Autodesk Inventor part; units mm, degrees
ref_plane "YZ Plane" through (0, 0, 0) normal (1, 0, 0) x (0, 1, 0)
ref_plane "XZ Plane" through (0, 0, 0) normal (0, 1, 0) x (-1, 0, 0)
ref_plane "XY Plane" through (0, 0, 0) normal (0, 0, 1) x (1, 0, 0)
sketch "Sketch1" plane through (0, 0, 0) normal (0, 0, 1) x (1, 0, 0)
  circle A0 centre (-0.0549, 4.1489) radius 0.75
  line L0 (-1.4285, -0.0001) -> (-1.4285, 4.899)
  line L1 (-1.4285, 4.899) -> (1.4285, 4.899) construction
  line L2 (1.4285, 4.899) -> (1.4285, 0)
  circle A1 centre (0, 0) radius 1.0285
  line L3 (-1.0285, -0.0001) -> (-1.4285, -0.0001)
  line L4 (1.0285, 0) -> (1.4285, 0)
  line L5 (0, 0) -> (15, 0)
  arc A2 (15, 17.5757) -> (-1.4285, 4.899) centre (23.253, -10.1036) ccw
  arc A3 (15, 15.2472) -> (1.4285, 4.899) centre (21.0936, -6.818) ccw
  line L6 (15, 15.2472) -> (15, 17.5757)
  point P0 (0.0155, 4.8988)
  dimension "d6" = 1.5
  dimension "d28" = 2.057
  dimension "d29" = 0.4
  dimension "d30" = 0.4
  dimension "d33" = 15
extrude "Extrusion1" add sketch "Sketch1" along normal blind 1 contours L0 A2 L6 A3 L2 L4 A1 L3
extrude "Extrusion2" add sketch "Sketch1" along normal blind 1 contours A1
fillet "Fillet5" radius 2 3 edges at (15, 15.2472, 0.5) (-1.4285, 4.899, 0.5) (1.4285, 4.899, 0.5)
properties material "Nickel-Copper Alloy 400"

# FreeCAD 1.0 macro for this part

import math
import FreeCAD as App
import Part
import Sketcher
from FreeCAD import Vector
Q = App.Units.Quantity


def edges_at(feature, points):
    """Names of the edges that pass closest to the given points."""
    edges = feature.Shape.Edges
    near = lambda p: min(range(len(edges)), key=lambda i: edges[i].distToShape(Part.Vertex(*p))[0])
    return sorted({f"Edge{near(p) + 1}" for p in points})

doc = App.newDocument("Part")
body = doc.addObject("PartDesign::Body", "Body")

sketch1 = body.newObject("Sketcher::SketchObject", "Sketch")
sketch1.AttachmentSupport = (doc.getObject("XY_Plane"), [""])
sketch1.MapMode = "FlatFace"
sketch1.addGeometry([
    Part.LineSegment(Vector(-1.43, 4.9, 0), Vector(-1.43, 0, 0)),
    Part.LineSegment(Vector(-1.43, 0, 0), Vector(-1.03, 0, 0)),
    Part.ArcOfCircle(Part.Circle(Vector(0, 0, 0), Vector(0, 0, 1), 1.03), math.radians(0), math.radians(180)),
    Part.LineSegment(Vector(1.03, 0, 0), Vector(1.43, 0, 0)),
    Part.LineSegment(Vector(1.43, 0, 0), Vector(1.43, 4.9, 0)),
    Part.ArcOfCircle(Part.Circle(Vector(21.09, -6.82, 0), Vector(0, 0, 1), 22.89), math.radians(105), math.radians(149)),
    Part.LineSegment(Vector(15, 15.25, 0), Vector(15, 17.58, 0)),
    Part.ArcOfCircle(Part.Circle(Vector(23.25, -10.1, 0), Vector(0, 0, 1), 28.88), math.radians(107), math.radians(149)),
    Part.Circle(Vector(-0.05, 4.15, 0), Vector(0, 0, 1), 0.75),
], False)
sketch1.addConstraint([
    Sketcher.Constraint("Coincident", 0, 2, 1, 1),
    Sketcher.Constraint("Coincident", 1, 2, 2, 2),
    Sketcher.Constraint("Coincident", 2, 1, 3, 1),
    Sketcher.Constraint("Coincident", 3, 2, 4, 1),
    Sketcher.Constraint("Coincident", 4, 2, 5, 2),
    Sketcher.Constraint("Coincident", 5, 1, 6, 1),
    Sketcher.Constraint("Coincident", 6, 2, 7, 1),
    Sketcher.Constraint("Coincident", 7, 2, 0, 1),
    Sketcher.Constraint("Vertical", 0),
    Sketcher.Constraint("Horizontal", 1),
    Sketcher.Constraint("Horizontal", 3),
    Sketcher.Constraint("Vertical", 4),
    Sketcher.Constraint("Vertical", 6),
    Sketcher.Constraint("Coincident", 2, 3, -1, 1),
    Sketcher.Constraint("Symmetric", 0, 2, 3, 2, -1, 1),
    Sketcher.Constraint("PointOnObject", 0, 2, -1),
    Sketcher.Constraint("Horizontal", 4, 2, 7, 2),
    Sketcher.Constraint("Diameter", 8, Q("1.5 mm")),
    Sketcher.Constraint("DistanceX", 1, 1, 1, 2, Q("0.4 mm")),
    Sketcher.Constraint("DistanceX", -1, 1, 5, 1, Q("15 mm")),
    Sketcher.Constraint("Radius", 2, Q("1.0285 mm")),
    Sketcher.Constraint("Radius", 5, Q("22.8912 mm")),
    Sketcher.Constraint("Radius", 7, Q("28.8835 mm")),
    Sketcher.Constraint("DistanceY", 0, 2, 0, 1, Q("4.899 mm")),
    Sketcher.Constraint("DistanceY", 8, 3, 4, 2, Q("0.75 mm")),
    Sketcher.Constraint("DistanceY", 6, 1, 6, 2, Q("2.3285 mm")),
    Sketcher.Constraint("DistanceY", 5, 3, -1, 1, Q("6.818 mm")),
    Sketcher.Constraint("DistanceX", 8, 3, -1, 1, Q("0.055 mm")),
])
pad1 = body.newObject("PartDesign::Pad", "Pad")
pad1.Profile = sketch1
pad1.Length = 1

sketch2 = body.newObject("Sketcher::SketchObject", "Sketch001")
sketch2.AttachmentSupport = (doc.getObject("XY_Plane"), [""])
sketch2.MapMode = "FlatFace"
sketch2.addGeometry(Part.Circle(Vector(0, 0, 0), Vector(0, 0, 1), 1), False)
sketch2.addConstraint([
    Sketcher.Constraint("Coincident", 0, 3, -1, 1),
    Sketcher.Constraint("Diameter", 0, Q("2.057 mm")),
])
pad2 = body.newObject("PartDesign::Pad", "Pad001")
pad2.Profile = sketch2
pad2.Length = 1
doc.recompute()

fillet = body.newObject("PartDesign::Fillet", "Fillet")
fillet.Base = (pad2, edges_at(pad2, [(15, 15.247, 0.5), (-1.429, 4.899, 0.5), (1.429, 4.899, 0.5)]))
fillet.Radius = 2

doc.recompute()
